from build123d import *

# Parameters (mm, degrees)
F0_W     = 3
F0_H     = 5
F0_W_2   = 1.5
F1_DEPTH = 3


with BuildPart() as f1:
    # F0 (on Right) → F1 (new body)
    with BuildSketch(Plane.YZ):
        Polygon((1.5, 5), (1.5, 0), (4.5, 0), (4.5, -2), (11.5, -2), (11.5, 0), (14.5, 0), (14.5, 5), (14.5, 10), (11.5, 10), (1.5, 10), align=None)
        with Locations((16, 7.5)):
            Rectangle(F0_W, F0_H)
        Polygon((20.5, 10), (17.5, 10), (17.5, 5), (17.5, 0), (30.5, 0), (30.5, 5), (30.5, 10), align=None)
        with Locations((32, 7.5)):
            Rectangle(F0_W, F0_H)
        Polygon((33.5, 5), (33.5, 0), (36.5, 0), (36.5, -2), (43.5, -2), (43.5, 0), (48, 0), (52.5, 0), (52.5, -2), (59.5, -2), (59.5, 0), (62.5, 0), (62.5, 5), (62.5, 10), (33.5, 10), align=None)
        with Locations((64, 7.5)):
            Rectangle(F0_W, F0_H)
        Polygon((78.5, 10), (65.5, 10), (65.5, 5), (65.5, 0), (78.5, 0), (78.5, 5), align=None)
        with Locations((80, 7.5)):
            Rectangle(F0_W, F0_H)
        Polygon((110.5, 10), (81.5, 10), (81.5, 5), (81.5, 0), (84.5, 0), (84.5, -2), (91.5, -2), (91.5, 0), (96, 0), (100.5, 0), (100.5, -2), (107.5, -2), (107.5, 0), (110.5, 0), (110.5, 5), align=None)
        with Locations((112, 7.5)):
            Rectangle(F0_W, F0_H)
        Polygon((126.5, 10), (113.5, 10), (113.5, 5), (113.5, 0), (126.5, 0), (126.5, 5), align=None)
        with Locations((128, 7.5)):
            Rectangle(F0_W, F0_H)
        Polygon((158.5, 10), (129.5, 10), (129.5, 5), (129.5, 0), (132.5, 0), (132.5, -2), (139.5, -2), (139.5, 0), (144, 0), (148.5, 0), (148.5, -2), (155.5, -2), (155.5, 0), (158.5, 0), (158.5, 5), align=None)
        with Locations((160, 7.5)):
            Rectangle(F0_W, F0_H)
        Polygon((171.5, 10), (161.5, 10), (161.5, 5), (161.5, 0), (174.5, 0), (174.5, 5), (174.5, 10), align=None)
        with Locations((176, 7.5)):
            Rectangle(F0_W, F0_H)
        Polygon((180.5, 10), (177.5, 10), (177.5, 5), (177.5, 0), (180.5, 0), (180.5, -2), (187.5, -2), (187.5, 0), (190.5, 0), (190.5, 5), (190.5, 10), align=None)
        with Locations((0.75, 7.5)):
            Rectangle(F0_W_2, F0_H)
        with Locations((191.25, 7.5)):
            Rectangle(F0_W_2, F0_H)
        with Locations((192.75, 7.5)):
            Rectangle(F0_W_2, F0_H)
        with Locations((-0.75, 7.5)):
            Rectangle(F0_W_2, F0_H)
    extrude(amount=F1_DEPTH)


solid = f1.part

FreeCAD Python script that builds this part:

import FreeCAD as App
import Part
import Sketcher
Q = App.Units.Quantity

doc = App.newDocument("Part")
params = doc.addObject("Spreadsheet::Sheet", "Params")
for row, (alias, value) in enumerate([
    ("sketch1_width", "3 mm"),
    ("sketch1_width2", "7 mm"),
    ("sketch1_width3", "13 mm"),
    ("sketch1_width4", "9 mm"),
    ("sketch1_height", "5 mm"),
    ("pad1_length", "3 mm"),
], start=1):
    params.set(f"A{row}", alias)
    params.set(f"B{row}", "=" + value)
    params.setAlias(f"B{row}", alias)

body = doc.addObject("PartDesign::Body", "Body")

# Sketch on YZ plane
sketch1 = body.newObject("Sketcher::SketchObject", "Sketch")
sketch1.AttachmentSupport = (doc.getObject("YZ_Plane"), [""])
sketch1.MapMode = "FlatFace"
sketch1.addGeometry(Part.LineSegment(App.Vector(-1.5, 5, 0), App.Vector(1.5, 5, 0)), False)
sketch1.addGeometry(Part.LineSegment(App.Vector(1.5, 5, 0), App.Vector(1.5, 0, 0)), False)
sketch1.addGeometry(Part.LineSegment(App.Vector(1.5, 0, 0), App.Vector(4.5, 0, 0)), False)
sketch1.addGeometry(Part.LineSegment(App.Vector(4.5, 0, 0), App.Vector(4.5, -2, 0)), False)
sketch1.addGeometry(Part.LineSegment(App.Vector(4.5, -2, 0), App.Vector(11.5, -2, 0)), False)
sketch1.addGeometry(Part.LineSegment(App.Vector(11.5, -2, 0), App.Vector(11.5, 0, 0)), False)
sketch1.addGeometry(Part.LineSegment(App.Vector(11.5, 0, 0), App.Vector(14.5, 0, 0)), False)
sketch1.addGeometry(Part.LineSegment(App.Vector(14.5, 0, 0), App.Vector(14.5, 5, 0)), False)
sketch1.addGeometry(Part.LineSegment(App.Vector(14.5, 5, 0), App.Vector(17.5, 5, 0)), False)
sketch1.addGeometry(Part.LineSegment(App.Vector(17.5, 5, 0), App.Vector(17.5, 0, 0)), False)
sketch1.addGeometry(Part.LineSegment(App.Vector(17.5, 0, 0), App.Vector(30.5, 0, 0)), False)
sketch1.addGeometry(Part.LineSegment(App.Vector(30.5, 0, 0), App.Vector(30.5, 5, 0)), False)
sketch1.addGeometry(Part.LineSegment(App.Vector(30.5, 5, 0), App.Vector(33.5, 5, 0)), False)
sketch1.addGeometry(Part.LineSegment(App.Vector(33.5, 5, 0), App.Vector(33.5, 0, 0)), False)
sketch1.addGeometry(Part.LineSegment(App.Vector(33.5, 0, 0), App.Vector(36.5, 0, 0)), False)
sketch1.addGeometry(Part.LineSegment(App.Vector(36.5, 0, 0), App.Vector(36.5, -2, 0)), False)
sketch1.addGeometry(Part.LineSegment(App.Vector(36.5, -2, 0), App.Vector(43.5, -2, 0)), False)
sketch1.addGeometry(Part.LineSegment(App.Vector(43.5, -2, 0), App.Vector(43.5, 0, 0)), False)
sketch1.addGeometry(Part.LineSegment(App.Vector(43.5, 0, 0), App.Vector(52.5, 0, 0)), False)
sketch1.addGeometry(Part.LineSegment(App.Vector(52.5, 0, 0), App.Vector(52.5, -2, 0)), False)
sketch1.addGeometry(Part.LineSegment(App.Vector(52.5, -2, 0), App.Vector(59.5, -2, 0)), False)
sketch1.addGeometry(Part.LineSegment(App.Vector(59.5, -2, 0), App.Vector(59.5, 0, 0)), False)
sketch1.addGeometry(Part.LineSegment(App.Vector(59.5, 0, 0), App.Vector(62.5, 0, 0)), False)
sketch1.addGeometry(Part.LineSegment(App.Vector(62.5, 0, 0), App.Vector(62.5, 5, 0)), False)
sketch1.addGeometry(Part.LineSegment(App.Vector(62.5, 5, 0), App.Vector(65.5, 5, 0)), False)
sketch1.addGeometry(Part.LineSegment(App.Vector(65.5, 5, 0), App.Vector(65.5, 0, 0)), False)
sketch1.addGeometry(Part.LineSegment(App.Vector(65.5, 0, 0), App.Vector(78.5, 0, 0)), False)
sketch1.addGeometry(Part.LineSegment(App.Vector(78.5, 0, 0), App.Vector(78.5, 5, 0)), False)
sketch1.addGeometry(Part.LineSegment(App.Vector(78.5, 5, 0), App.Vector(81.5, 5, 0)), False)
sketch1.addGeometry(Part.LineSegment(App.Vector(81.5, 5, 0), App.Vector(81.5, 0, 0)), False)
sketch1.addGeometry(Part.LineSegment(App.Vector(81.5, 0, 0), App.Vector(84.5, 0, 0)), False)
sketch1.addGeometry(Part.LineSegment(App.Vector(84.5, 0, 0), App.Vector(84.5, -2, 0)), False)
sketch1.addGeometry(Part.LineSegment(App.Vector(84.5, -2, 0), App.Vector(91.5, -2, 0)), False)
sketch1.addGeometry(Part.LineSegment(App.Vector(91.5, -2, 0), App.Vector(91.5, 0, 0)), False)
sketch1.addGeometry(Part.LineSegment(App.Vector(91.5, 0, 0), App.Vector(100.5, 0, 0)), False)
sketch1.addGeometry(Part.LineSegment(App.Vector(100.5, 0, 0), App.Vector(100.5, -2, 0)), False)
sketch1.addGeometry(Part.LineSegment(App.Vector(100.5, -2, 0), App.Vector(107.5, -2, 0)), False)
sketch1.addGeometry(Part.LineSegment(App.Vector(107.5, -2, 0), App.Vector(107.5, 0, 0)), False)
sketch1.addGeometry(Part.LineSegment(App.Vector(107.5, 0, 0), App.Vector(110.5, 0, 0)), False)
sketch1.addGeometry(Part.LineSegment(App.Vector(110.5, 0, 0), App.Vector(110.5, 5, 0)), False)
sketch1.addGeometry(Part.LineSegment(App.Vector(110.5, 5, 0), App.Vector(113.5, 5, 0)), False)
sketch1.addGeometry(Part.LineSegment(App.Vector(113.5, 5, 0), App.Vector(113.5, 0, 0)), False)
sketch1.addGeometry(Part.LineSegment(App.Vector(113.5, 0, 0), App.Vector(126.5, 0, 0)), False)
sketch1.addGeometry(Part.LineSegment(App.Vector(126.5, 0, 0), App.Vector(126.5, 5, 0)), False)
sketch1.addGeometry(Part.LineSegment(App.Vector(126.5, 5, 0), App.Vector(129.5, 5, 0)), False)
sketch1.addGeometry(Part.LineSegment(App.Vector(129.5, 5, 0), App.Vector(129.5, 0, 0)), False)
sketch1.addGeometry(Part.LineSegment(App.Vector(129.5, 0, 0), App.Vector(132.5, 0, 0)), False)
sketch1.addGeometry(Part.LineSegment(App.Vector(132.5, 0, 0), App.Vector(132.5, -2, 0)), False)
sketch1.addGeometry(Part.LineSegment(App.Vector(132.5, -2, 0), App.Vector(139.5, -2, 0)), False)
sketch1.addGeometry(Part.LineSegment(App.Vector(139.5, -2, 0), App.Vector(139.5, 0, 0)), False)
sketch1.addGeometry(Part.LineSegment(App.Vector(139.5, 0, 0), App.Vector(148.5, 0, 0)), False)
sketch1.addGeometry(Part.LineSegment(App.Vector(148.5, 0, 0), App.Vector(148.5, -2, 0)), False)
sketch1.addGeometry(Part.LineSegment(App.Vector(148.5, -2, 0), App.Vector(155.5, -2, 0)), False)
sketch1.addGeometry(Part.LineSegment(App.Vector(155.5, -2, 0), App.Vector(155.5, 0, 0)), False)
sketch1.addGeometry(Part.LineSegment(App.Vector(155.5, 0, 0), App.Vector(158.5, 0, 0)), False)
sketch1.addGeometry(Part.LineSegment(App.Vector(158.5, 0, 0), App.Vector(158.5, 5, 0)), False)
sketch1.addGeometry(Part.LineSegment(App.Vector(158.5, 5, 0), App.Vector(161.5, 5, 0)), False)
sketch1.addGeometry(Part.LineSegment(App.Vector(161.5, 5, 0), App.Vector(161.5, 0, 0)), False)
sketch1.addGeometry(Part.LineSegment(App.Vector(161.5, 0, 0), App.Vector(174.5, 0, 0)), False)
sketch1.addGeometry(Part.LineSegment(App.Vector(174.5, 0, 0), App.Vector(174.5, 5, 0)), False)
sketch1.addGeometry(Part.LineSegment(App.Vector(174.5, 5, 0), App.Vector(177.5, 5, 0)), False)
sketch1.addGeometry(Part.LineSegment(App.Vector(177.5, 5, 0), App.Vector(177.5, 0, 0)), False)
sketch1.addGeometry(Part.LineSegment(App.Vector(177.5, 0, 0), App.Vector(180.5, 0, 0)), False)
sketch1.addGeometry(Part.LineSegment(App.Vector(180.5, 0, 0), App.Vector(180.5, -2, 0)), False)
sketch1.addGeometry(Part.LineSegment(App.Vector(180.5, -2, 0), App.Vector(187.5, -2, 0)), False)
sketch1.addGeometry(Part.LineSegment(App.Vector(187.5, -2, 0), App.Vector(187.5, 0, 0)), False)
sketch1.addGeometry(Part.LineSegment(App.Vector(187.5, 0, 0), App.Vector(190.5, 0, 0)), False)
sketch1.addGeometry(Part.LineSegment(App.Vector(190.5, 0, 0), App.Vector(190.5, 5, 0)), False)
sketch1.addGeometry(Part.LineSegment(App.Vector(190.5, 5, 0), App.Vector(193.5, 5, 0)), False)
sketch1.addGeometry(Part.LineSegment(App.Vector(193.5, 5, 0), App.Vector(193.5, 10, 0)), False)
sketch1.addGeometry(Part.LineSegment(App.Vector(193.5, 10, 0), App.Vector(-1.5, 10, 0)), False)
sketch1.addGeometry(Part.LineSegment(App.Vector(-1.5, 10, 0), App.Vector(-1.5, 5, 0)), False)
sketch1.addConstraint(Sketcher.Constraint("Coincident", 0, 2, 1, 1))
sketch1.addConstraint(Sketcher.Constraint("Coincident", 1, 2, 2, 1))
sketch1.addConstraint(Sketcher.Constraint("Coincident", 2, 2, 3, 1))
sketch1.addConstraint(Sketcher.Constraint("Coincident", 3, 2, 4, 1))
sketch1.addConstraint(Sketcher.Constraint("Coincident", 4, 2, 5, 1))
sketch1.addConstraint(Sketcher.Constraint("Coincident", 5, 2, 6, 1))
sketch1.addConstraint(Sketcher.Constraint("Coincident", 6, 2, 7, 1))
sketch1.addConstraint(Sketcher.Constraint("Coincident", 7, 2, 8, 1))
sketch1.addConstraint(Sketcher.Constraint("Coincident", 8, 2, 9, 1))
sketch1.addConstraint(Sketcher.Constraint("Coincident", 9, 2, 10, 1))
sketch1.addConstraint(Sketcher.Constraint("Coincident", 10, 2, 11, 1))
sketch1.addConstraint(Sketcher.Constraint("Coincident", 11, 2, 12, 1))
sketch1.addConstraint(Sketcher.Constraint("Coincident", 12, 2, 13, 1))
sketch1.addConstraint(Sketcher.Constraint("Coincident", 13, 2, 14, 1))
sketch1.addConstraint(Sketcher.Constraint("Coincident", 14, 2, 15, 1))
sketch1.addConstraint(Sketcher.Constraint("Coincident", 15, 2, 16, 1))
sketch1.addConstraint(Sketcher.Constraint("Coincident", 16, 2, 17, 1))
sketch1.addConstraint(Sketcher.Constraint("Coincident", 17, 2, 18, 1))
sketch1.addConstraint(Sketcher.Constraint("Coincident", 18, 2, 19, 1))
sketch1.addConstraint(Sketcher.Constraint("Coincident", 19, 2, 20, 1))
sketch1.addConstraint(Sketcher.Constraint("Coincident", 20, 2, 21, 1))
sketch1.addConstraint(Sketcher.Constraint("Coincident", 21, 2, 22, 1))
sketch1.addConstraint(Sketcher.Constraint("Coincident", 22, 2, 23, 1))
sketch1.addConstraint(Sketcher.Constraint("Coincident", 23, 2, 24, 1))
sketch1.addConstraint(Sketcher.Constraint("Coincident", 24, 2, 25, 1))
sketch1.addConstraint(Sketcher.Constraint("Coincident", 25, 2, 26, 1))
sketch1.addConstraint(Sketcher.Constraint("Coincident", 26, 2, 27, 1))
sketch1.addConstraint(Sketcher.Constraint("Coincident", 27, 2, 28, 1))
sketch1.addConstraint(Sketcher.Constraint("Coincident", 28, 2, 29, 1))
sketch1.addConstraint(Sketcher.Constraint("Coincident", 29, 2, 30, 1))
sketch1.addConstraint(Sketcher.Constraint("Coincident", 30, 2, 31, 1))
sketch1.addConstraint(Sketcher.Constraint("Coincident", 31, 2, 32, 1))
sketch1.addConstraint(Sketcher.Constraint("Coincident", 32, 2, 33, 1))
sketch1.addConstraint(Sketcher.Constraint("Coincident", 33, 2, 34, 1))
sketch1.addConstraint(Sketcher.Constraint("Coincident", 34, 2, 35, 1))
sketch1.addConstraint(Sketcher.Constraint("Coincident", 35, 2, 36, 1))
sketch1.addConstraint(Sketcher.Constraint("Coincident", 36, 2, 37, 1))
sketch1.addConstraint(Sketcher.Constraint("Coincident", 37, 2, 38, 1))
sketch1.addConstraint(Sketcher.Constraint("Coincident", 38, 2, 39, 1))
sketch1.addConstraint(Sketcher.Constraint("Coincident", 39, 2, 40, 1))
sketch1.addConstraint(Sketcher.Constraint("Coincident", 40, 2, 41, 1))
sketch1.addConstraint(Sketcher.Constraint("Coincident", 41, 2, 42, 1))
sketch1.addConstraint(Sketcher.Constraint("Coincident", 42, 2, 43, 1))
sketch1.addConstraint(Sketcher.Constraint("Coincident", 43, 2, 44, 1))
sketch1.addConstraint(Sketcher.Constraint("Coincident", 44, 2, 45, 1))
sketch1.addConstraint(Sketcher.Constraint("Coincident", 45, 2, 46, 1))
sketch1.addConstraint(Sketcher.Constraint("Coincident", 46, 2, 47, 1))
sketch1.addConstraint(Sketcher.Constraint("Coincident", 47, 2, 48, 1))
sketch1.addConstraint(Sketcher.Constraint("Coincident", 48, 2, 49, 1))
sketch1.addConstraint(Sketcher.Constraint("Coincident", 49, 2, 50, 1))
sketch1.addConstraint(Sketcher.Constraint("Coincident", 50, 2, 51, 1))
sketch1.addConstraint(Sketcher.Constraint("Coincident", 51, 2, 52, 1))
sketch1.addConstraint(Sketcher.Constraint("Coincident", 52, 2, 53, 1))
sketch1.addConstraint(Sketcher.Constraint("Coincident", 53, 2, 54, 1))
sketch1.addConstraint(Sketcher.Constraint("Coincident", 54, 2, 55, 1))
sketch1.addConstraint(Sketcher.Constraint("Coincident", 55, 2, 56, 1))
sketch1.addConstraint(Sketcher.Constraint("Coincident", 56, 2, 57, 1))
sketch1.addConstraint(Sketcher.Constraint("Coincident", 57, 2, 58, 1))
sketch1.addConstraint(Sketcher.Constraint("Coincident", 58, 2, 59, 1))
sketch1.addConstraint(Sketcher.Constraint("Coincident", 59, 2, 60, 1))
sketch1.addConstraint(Sketcher.Constraint("Coincident", 60, 2, 61, 1))
sketch1.addConstraint(Sketcher.Constraint("Coincident", 61, 2, 62, 1))
sketch1.addConstraint(Sketcher.Constraint("Coincident", 62, 2, 63, 1))
sketch1.addConstraint(Sketcher.Constraint("Coincident", 63, 2, 64, 1))
sketch1.addConstraint(Sketcher.Constraint("Coincident", 64, 2, 65, 1))
sketch1.addConstraint(Sketcher.Constraint("Coincident", 65, 2, 66, 1))
sketch1.addConstraint(Sketcher.Constraint("Coincident", 66, 2, 67, 1))
sketch1.addConstraint(Sketcher.Constraint("Coincident", 67, 2, 68, 1))
sketch1.addConstraint(Sketcher.Constraint("Coincident", 68, 2, 69, 1))
sketch1.addConstraint(Sketcher.Constraint("Coincident", 69, 2, 70, 1))
sketch1.addConstraint(Sketcher.Constraint("Coincident", 70, 2, 71, 1))
sketch1.addConstraint(Sketcher.Constraint("Coincident", 71, 2, 0, 1))
sketch1.addConstraint(Sketcher.Constraint("Horizontal", 0))
sketch1.addConstraint(Sketcher.Constraint("Vertical", 1))
sketch1.addConstraint(Sketcher.Constraint("Horizontal", 2))
sketch1.addConstraint(Sketcher.Constraint("Vertical", 3))
sketch1.addConstraint(Sketcher.Constraint("Horizontal", 4))
sketch1.addConstraint(Sketcher.Constraint("Vertical", 5))
sketch1.addConstraint(Sketcher.Constraint("Horizontal", 6))
sketch1.addConstraint(Sketcher.Constraint("Vertical", 7))
sketch1.addConstraint(Sketcher.Constraint("Horizontal", 8))
sketch1.addConstraint(Sketcher.Constraint("Vertical", 9))
sketch1.addConstraint(Sketcher.Constraint("Horizontal", 10))
sketch1.addConstraint(Sketcher.Constraint("Vertical", 11))
sketch1.addConstraint(Sketcher.Constraint("Horizontal", 12))
sketch1.addConstraint(Sketcher.Constraint("Vertical", 13))
sketch1.addConstraint(Sketcher.Constraint("Horizontal", 14))
sketch1.addConstraint(Sketcher.Constraint("Vertical", 15))
sketch1.addConstraint(Sketcher.Constraint("Horizontal", 16))
sketch1.addConstraint(Sketcher.Constraint("Vertical", 17))
sketch1.addConstraint(Sketcher.Constraint("Horizontal", 18))
sketch1.addConstraint(Sketcher.Constraint("Vertical", 19))
sketch1.addConstraint(Sketcher.Constraint("Horizontal", 20))
sketch1.addConstraint(Sketcher.Constraint("Vertical", 21))
sketch1.addConstraint(Sketcher.Constraint("Horizontal", 22))
sketch1.addConstraint(Sketcher.Constraint("Vertical", 23))
sketch1.addConstraint(Sketcher.Constraint("Horizontal", 24))
sketch1.addConstraint(Sketcher.Constraint("Vertical", 25))
sketch1.addConstraint(Sketcher.Constraint("Horizontal", 26))
sketch1.addConstraint(Sketcher.Constraint("Vertical", 27))
sketch1.addConstraint(Sketcher.Constraint("Horizontal", 28))
sketch1.addConstraint(Sketcher.Constraint("Vertical", 29))
sketch1.addConstraint(Sketcher.Constraint("Horizontal", 30))
sketch1.addConstraint(Sketcher.Constraint("Vertical", 31))
sketch1.addConstraint(Sketcher.Constraint("Horizontal", 32))
sketch1.addConstraint(Sketcher.Constraint("Vertical", 33))
sketch1.addConstraint(Sketcher.Constraint("Horizontal", 34))
sketch1.addConstraint(Sketcher.Constraint("Vertical", 35))
sketch1.addConstraint(Sketcher.Constraint("Horizontal", 36))
sketch1.addConstraint(Sketcher.Constraint("Vertical", 37))
sketch1.addConstraint(Sketcher.Constraint("Horizontal", 38))
sketch1.addConstraint(Sketcher.Constraint("Vertical", 39))
sketch1.addConstraint(Sketcher.Constraint("Horizontal", 40))
sketch1.addConstraint(Sketcher.Constraint("Vertical", 41))
sketch1.addConstraint(Sketcher.Constraint("Horizontal", 42))
sketch1.addConstraint(Sketcher.Constraint("Vertical", 43))
sketch1.addConstraint(Sketcher.Constraint("Horizontal", 44))
sketch1.addConstraint(Sketcher.Constraint("Vertical", 45))
sketch1.addConstraint(Sketcher.Constraint("Horizontal", 46))
sketch1.addConstraint(Sketcher.Constraint("Vertical", 47))
sketch1.addConstraint(Sketcher.Constraint("Horizontal", 48))
sketch1.addConstraint(Sketcher.Constraint("Vertical", 49))
sketch1.addConstraint(Sketcher.Constraint("Horizontal", 50))
sketch1.addConstraint(Sketcher.Constraint("Vertical", 51))
sketch1.addConstraint(Sketcher.Constraint("Horizontal", 52))
sketch1.addConstraint(Sketcher.Constraint("Vertical", 53))
sketch1.addConstraint(Sketcher.Constraint("Horizontal", 54))
sketch1.addConstraint(Sketcher.Constraint("Vertical", 55))
sketch1.addConstraint(Sketcher.Constraint("Horizontal", 56))
sketch1.addConstraint(Sketcher.Constraint("Vertical", 57))
sketch1.addConstraint(Sketcher.Constraint("Horizontal", 58))
sketch1.addConstraint(Sketcher.Constraint("Vertical", 59))
sketch1.addConstraint(Sketcher.Constraint("Horizontal", 60))
sketch1.addConstraint(Sketcher.Constraint("Vertical", 61))
sketch1.addConstraint(Sketcher.Constraint("Horizontal", 62))
sketch1.addConstraint(Sketcher.Constraint("Vertical", 63))
sketch1.addConstraint(Sketcher.Constraint("Horizontal", 64))
sketch1.addConstraint(Sketcher.Constraint("Vertical", 65))
sketch1.addConstraint(Sketcher.Constraint("Horizontal", 66))
sketch1.addConstraint(Sketcher.Constraint("Vertical", 67))
sketch1.addConstraint(Sketcher.Constraint("Horizontal", 68))
sketch1.addConstraint(Sketcher.Constraint("Vertical", 69))
sketch1.addConstraint(Sketcher.Constraint("Horizontal", 70))
sketch1.addConstraint(Sketcher.Constraint("Vertical", 71))
sketch1.addConstraint(Sketcher.Constraint("PointOnObject", 1, 2, -1))
sketch1.addConstraint(Sketcher.Constraint("PointOnObject", 5, 2, -1))
sketch1.addConstraint(Sketcher.Constraint("PointOnObject", 9, 2, -1))
sketch1.addConstraint(Sketcher.Constraint("PointOnObject", 13, 2, -1))
sketch1.addConstraint(Sketcher.Constraint("PointOnObject", 17, 2, -1))
sketch1.addConstraint(Sketcher.Constraint("PointOnObject", 21, 2, -1))
sketch1.addConstraint(Sketcher.Constraint("PointOnObject", 25, 2, -1))
sketch1.addConstraint(Sketcher.Constraint("PointOnObject", 29, 2, -1))
sketch1.addConstraint(Sketcher.Constraint("PointOnObject", 33, 2, -1))
sketch1.addConstraint(Sketcher.Constraint("PointOnObject", 37, 2, -1))
sketch1.addConstraint(Sketcher.Constraint("PointOnObject", 41, 2, -1))
sketch1.addConstraint(Sketcher.Constraint("PointOnObject", 45, 2, -1))
sketch1.addConstraint(Sketcher.Constraint("PointOnObject", 49, 2, -1))
sketch1.addConstraint(Sketcher.Constraint("PointOnObject", 53, 2, -1))
sketch1.addConstraint(Sketcher.Constraint("PointOnObject", 57, 2, -1))
sketch1.addConstraint(Sketcher.Constraint("PointOnObject", 61, 2, -1))
sketch1.addConstraint(Sketcher.Constraint("PointOnObject", 65, 2, -1))
sketch1.addConstraint(Sketcher.Constraint("Horizontal", 0, 2, 7, 2))
sketch1.addConstraint(Sketcher.Constraint("Horizontal", 8, 2, 11, 2))
sketch1.addConstraint(Sketcher.Constraint("Horizontal", 4, 2, 15, 2))
sketch1.addConstraint(Sketcher.Constraint("Horizontal", 16, 2, 19, 2))
sketch1.addConstraint(Sketcher.Constraint("Horizontal", 12, 2, 23, 2))
sketch1.addConstraint(Sketcher.Constraint("Horizontal", 24, 2, 27, 2))
sketch1.addConstraint(Sketcher.Constraint("Horizontal", 20, 2, 31, 2))
sketch1.addConstraint(Sketcher.Constraint("Horizontal", 32, 2, 35, 2))
sketch1.addConstraint(Sketcher.Constraint("Horizontal", 28, 2, 39, 2))
sketch1.addConstraint(Sketcher.Constraint("Horizontal", 40, 2, 43, 2))
sketch1.addConstraint(Sketcher.Constraint("Horizontal", 36, 2, 47, 2))
sketch1.addConstraint(Sketcher.Constraint("Horizontal", 48, 2, 51, 2))
sketch1.addConstraint(Sketcher.Constraint("Horizontal", 44, 2, 55, 2))
sketch1.addConstraint(Sketcher.Constraint("Horizontal", 56, 2, 59, 2))
sketch1.addConstraint(Sketcher.Constraint("Horizontal", 52, 2, 63, 2))
sketch1.addConstraint(Sketcher.Constraint("Horizontal", 60, 2, 67, 2))
sketch1.addConstraint(Sketcher.Constraint("Equal", 0, 2))
sketch1.addConstraint(Sketcher.Constraint("Equal", 2, 6))
sketch1.addConstraint(Sketcher.Constraint("Equal", 6, 8))
sketch1.addConstraint(Sketcher.Constraint("Equal", 8, 12))
sketch1.addConstraint(Sketcher.Constraint("Equal", 12, 14))
sketch1.addConstraint(Sketcher.Constraint("Equal", 4, 16))
sketch1.addConstraint(Sketcher.Constraint("Equal", 16, 20))
sketch1.addConstraint(Sketcher.Constraint("Equal", 14, 22))
sketch1.addConstraint(Sketcher.Constraint("Equal", 22, 24))
sketch1.addConstraint(Sketcher.Constraint("Equal", 10, 26))
sketch1.addConstraint(Sketcher.Constraint("Equal", 24, 28))
sketch1.addConstraint(Sketcher.Constraint("Equal", 28, 30))
sketch1.addConstraint(Sketcher.Constraint("Equal", 20, 32))
sketch1.addConstraint(Sketcher.Constraint("Equal", 18, 34))
sketch1.addConstraint(Sketcher.Constraint("Equal", 32, 36))
sketch1.addConstraint(Sketcher.Constraint("Equal", 30, 38))
sketch1.addConstraint(Sketcher.Constraint("Equal", 38, 40))
sketch1.addConstraint(Sketcher.Constraint("Equal", 26, 42))
sketch1.addConstraint(Sketcher.Constraint("Equal", 40, 44))
sketch1.addConstraint(Sketcher.Constraint("Equal", 44, 46))
sketch1.addConstraint(Sketcher.Constraint("Equal", 36, 48))
sketch1.addConstraint(Sketcher.Constraint("Equal", 34, 50))
sketch1.addConstraint(Sketcher.Constraint("Equal", 48, 52))
sketch1.addConstraint(Sketcher.Constraint("Equal", 46, 54))
sketch1.addConstraint(Sketcher.Constraint("Equal", 54, 56))
sketch1.addConstraint(Sketcher.Constraint("Equal", 42, 58))
sketch1.addConstraint(Sketcher.Constraint("Equal", 56, 60))
sketch1.addConstraint(Sketcher.Constraint("Equal", 60, 62))
sketch1.addConstraint(Sketcher.Constraint("Equal", 52, 64))
sketch1.addConstraint(Sketcher.Constraint("Equal", 62, 66))
sketch1.addConstraint(Sketcher.Constraint("Equal", 66, 68))
sketch1.addConstraint(Sketcher.Constraint("Equal", 67, 69))
sketch1.addConstraint(Sketcher.Constraint("DistanceX", 0, 1, 0, 2, Q("3 mm")))
sketch1.addConstraint(Sketcher.Constraint("DistanceX", 4, 1, 4, 2, Q("7 mm")))
sketch1.addConstraint(Sketcher.Constraint("DistanceX", 10, 1, 10, 2, Q("13 mm")))
sketch1.addConstraint(Sketcher.Constraint("DistanceX", 18, 1, 18, 2, Q("9 mm")))
sketch1.addConstraint(Sketcher.Constraint("DistanceY", 1, 2, 1, 1, Q("5 mm")))
sketch1.addConstraint(Sketcher.Constraint("DistanceY", 3, 2, 3, 1, Q("2 mm")))
sketch1.addConstraint(Sketcher.Constraint("DistanceX", -1, 1, 0, 2, Q("1.5 mm")))
sketch1.setExpression("Constraints[209]", "Params.sketch1_width")
sketch1.setExpression("Constraints[210]", "Params.sketch1_width2")
sketch1.setExpression("Constraints[211]", "Params.sketch1_width3")
sketch1.setExpression("Constraints[212]", "Params.sketch1_width4")
sketch1.setExpression("Constraints[213]", "Params.sketch1_height")
pad1 = body.newObject("PartDesign::Pad", "Pad")
pad1.Profile = sketch1
pad1.setExpression("Length", "Params.pad1_length")

doc.recompute()
